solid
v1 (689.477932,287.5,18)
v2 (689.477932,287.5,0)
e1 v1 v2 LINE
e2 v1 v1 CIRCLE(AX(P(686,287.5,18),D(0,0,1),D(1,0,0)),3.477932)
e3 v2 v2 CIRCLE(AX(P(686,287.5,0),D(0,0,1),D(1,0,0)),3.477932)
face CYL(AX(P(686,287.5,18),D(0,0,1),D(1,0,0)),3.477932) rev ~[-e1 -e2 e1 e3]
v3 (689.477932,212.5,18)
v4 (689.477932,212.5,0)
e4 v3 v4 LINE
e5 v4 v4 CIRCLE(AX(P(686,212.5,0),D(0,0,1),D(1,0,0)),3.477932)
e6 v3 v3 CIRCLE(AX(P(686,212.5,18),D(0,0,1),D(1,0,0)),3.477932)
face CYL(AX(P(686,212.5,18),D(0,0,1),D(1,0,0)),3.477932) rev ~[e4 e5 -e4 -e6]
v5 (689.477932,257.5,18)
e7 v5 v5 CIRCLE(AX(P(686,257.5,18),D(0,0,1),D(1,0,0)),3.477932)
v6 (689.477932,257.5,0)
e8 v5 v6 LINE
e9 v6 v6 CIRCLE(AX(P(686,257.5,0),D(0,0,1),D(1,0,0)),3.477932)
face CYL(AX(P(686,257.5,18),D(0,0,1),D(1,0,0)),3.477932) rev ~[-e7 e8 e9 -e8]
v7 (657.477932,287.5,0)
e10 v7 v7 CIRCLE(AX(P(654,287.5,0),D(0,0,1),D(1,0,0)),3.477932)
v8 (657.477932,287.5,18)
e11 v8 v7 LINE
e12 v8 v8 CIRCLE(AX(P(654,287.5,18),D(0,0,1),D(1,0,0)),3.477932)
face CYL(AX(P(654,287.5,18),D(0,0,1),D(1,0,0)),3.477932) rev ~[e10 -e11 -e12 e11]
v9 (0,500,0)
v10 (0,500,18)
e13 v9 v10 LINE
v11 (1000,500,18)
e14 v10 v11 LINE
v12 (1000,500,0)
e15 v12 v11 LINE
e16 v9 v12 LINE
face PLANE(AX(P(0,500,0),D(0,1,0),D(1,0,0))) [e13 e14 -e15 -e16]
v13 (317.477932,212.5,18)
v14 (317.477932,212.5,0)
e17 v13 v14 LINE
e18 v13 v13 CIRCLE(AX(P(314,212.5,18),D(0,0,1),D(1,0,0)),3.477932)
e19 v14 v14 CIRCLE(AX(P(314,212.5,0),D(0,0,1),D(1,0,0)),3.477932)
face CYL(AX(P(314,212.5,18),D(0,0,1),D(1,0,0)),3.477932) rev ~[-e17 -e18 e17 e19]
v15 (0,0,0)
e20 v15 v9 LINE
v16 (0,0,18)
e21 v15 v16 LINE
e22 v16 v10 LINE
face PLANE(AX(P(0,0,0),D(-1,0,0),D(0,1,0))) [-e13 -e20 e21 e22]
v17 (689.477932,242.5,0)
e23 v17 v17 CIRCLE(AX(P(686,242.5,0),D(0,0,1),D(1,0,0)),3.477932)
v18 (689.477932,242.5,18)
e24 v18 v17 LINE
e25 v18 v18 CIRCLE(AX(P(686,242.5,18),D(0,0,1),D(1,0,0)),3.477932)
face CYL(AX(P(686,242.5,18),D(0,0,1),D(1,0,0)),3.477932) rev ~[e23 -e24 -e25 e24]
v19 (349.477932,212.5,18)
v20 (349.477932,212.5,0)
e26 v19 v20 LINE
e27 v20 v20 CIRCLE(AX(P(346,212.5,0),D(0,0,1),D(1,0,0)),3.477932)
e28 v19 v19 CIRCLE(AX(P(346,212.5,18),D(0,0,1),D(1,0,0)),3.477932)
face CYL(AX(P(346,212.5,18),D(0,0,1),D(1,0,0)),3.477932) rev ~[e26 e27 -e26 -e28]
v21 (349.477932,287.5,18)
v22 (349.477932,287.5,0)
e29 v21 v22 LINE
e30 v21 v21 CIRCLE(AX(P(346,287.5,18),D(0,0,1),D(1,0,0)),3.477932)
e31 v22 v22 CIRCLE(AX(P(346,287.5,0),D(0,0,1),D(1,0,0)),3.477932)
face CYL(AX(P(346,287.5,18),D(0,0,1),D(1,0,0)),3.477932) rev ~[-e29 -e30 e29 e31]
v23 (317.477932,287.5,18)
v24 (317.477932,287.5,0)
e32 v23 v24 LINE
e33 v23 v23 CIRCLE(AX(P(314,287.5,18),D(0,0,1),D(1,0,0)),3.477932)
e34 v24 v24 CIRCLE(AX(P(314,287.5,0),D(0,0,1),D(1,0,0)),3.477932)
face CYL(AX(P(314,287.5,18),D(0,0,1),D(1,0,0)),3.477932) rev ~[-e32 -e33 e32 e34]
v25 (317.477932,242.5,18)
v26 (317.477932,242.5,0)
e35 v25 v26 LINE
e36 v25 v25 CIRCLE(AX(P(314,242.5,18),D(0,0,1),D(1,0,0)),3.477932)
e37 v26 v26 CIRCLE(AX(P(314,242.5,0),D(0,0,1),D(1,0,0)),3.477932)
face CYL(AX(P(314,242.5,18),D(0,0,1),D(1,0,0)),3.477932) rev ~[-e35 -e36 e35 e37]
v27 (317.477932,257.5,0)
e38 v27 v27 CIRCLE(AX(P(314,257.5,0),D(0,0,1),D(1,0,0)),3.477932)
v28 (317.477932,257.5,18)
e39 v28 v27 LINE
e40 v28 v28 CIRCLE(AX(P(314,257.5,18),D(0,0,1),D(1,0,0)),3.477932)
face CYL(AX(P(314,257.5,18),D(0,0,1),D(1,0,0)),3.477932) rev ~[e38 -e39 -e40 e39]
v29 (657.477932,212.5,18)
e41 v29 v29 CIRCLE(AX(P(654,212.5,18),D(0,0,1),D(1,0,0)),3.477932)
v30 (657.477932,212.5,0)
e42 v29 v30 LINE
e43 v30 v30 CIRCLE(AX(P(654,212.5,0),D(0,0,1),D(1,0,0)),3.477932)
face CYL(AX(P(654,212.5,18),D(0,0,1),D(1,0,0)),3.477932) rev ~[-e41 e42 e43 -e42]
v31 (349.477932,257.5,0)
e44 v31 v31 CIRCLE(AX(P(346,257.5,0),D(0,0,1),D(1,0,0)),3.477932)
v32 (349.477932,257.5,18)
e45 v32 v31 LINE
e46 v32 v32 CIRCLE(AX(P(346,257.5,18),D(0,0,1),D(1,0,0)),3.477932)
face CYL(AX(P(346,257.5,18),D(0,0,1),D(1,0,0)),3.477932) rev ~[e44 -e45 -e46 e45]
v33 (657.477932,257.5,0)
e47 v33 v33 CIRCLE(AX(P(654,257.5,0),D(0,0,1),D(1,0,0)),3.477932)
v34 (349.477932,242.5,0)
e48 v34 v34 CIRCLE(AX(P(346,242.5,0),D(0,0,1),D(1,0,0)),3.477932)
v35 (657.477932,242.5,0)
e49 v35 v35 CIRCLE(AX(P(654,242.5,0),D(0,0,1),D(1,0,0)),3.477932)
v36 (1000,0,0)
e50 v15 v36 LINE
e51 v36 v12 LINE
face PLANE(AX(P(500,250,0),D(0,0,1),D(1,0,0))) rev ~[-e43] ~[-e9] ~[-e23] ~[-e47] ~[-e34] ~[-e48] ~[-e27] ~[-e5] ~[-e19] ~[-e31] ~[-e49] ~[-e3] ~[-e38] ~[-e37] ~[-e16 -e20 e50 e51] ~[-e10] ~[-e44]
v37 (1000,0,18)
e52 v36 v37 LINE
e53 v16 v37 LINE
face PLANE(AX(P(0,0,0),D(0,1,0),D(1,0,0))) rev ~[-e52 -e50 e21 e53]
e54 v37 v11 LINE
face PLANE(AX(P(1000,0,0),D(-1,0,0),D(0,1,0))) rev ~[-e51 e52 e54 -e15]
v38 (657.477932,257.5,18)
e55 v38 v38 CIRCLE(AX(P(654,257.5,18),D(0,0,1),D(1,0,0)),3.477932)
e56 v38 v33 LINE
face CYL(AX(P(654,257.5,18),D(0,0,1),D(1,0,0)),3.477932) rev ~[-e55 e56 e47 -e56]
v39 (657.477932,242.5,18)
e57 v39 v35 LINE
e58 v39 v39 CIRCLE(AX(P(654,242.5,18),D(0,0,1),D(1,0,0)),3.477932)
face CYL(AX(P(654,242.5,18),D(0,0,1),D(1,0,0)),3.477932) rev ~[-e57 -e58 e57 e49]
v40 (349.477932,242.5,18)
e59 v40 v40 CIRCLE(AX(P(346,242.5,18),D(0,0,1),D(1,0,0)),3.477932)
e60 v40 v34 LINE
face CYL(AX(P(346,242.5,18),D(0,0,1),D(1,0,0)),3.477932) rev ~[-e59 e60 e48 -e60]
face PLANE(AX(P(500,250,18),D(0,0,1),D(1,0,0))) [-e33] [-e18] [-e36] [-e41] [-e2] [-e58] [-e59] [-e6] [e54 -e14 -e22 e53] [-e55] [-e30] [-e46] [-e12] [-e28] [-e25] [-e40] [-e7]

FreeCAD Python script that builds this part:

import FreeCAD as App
import Part
import Sketcher

V = App.Vector
Q = App.Units.Quantity

doc = App.newDocument("Part")
body = doc.addObject("PartDesign::Body", "Body")

# Sketch on XY plane
sketch1 = body.newObject("Sketcher::SketchObject", "Sketch")
sketch1.AttachmentSupport = (doc.getObject("XY_Plane"), [""])
sketch1.MapMode = "FlatFace"
sketch1.addGeometry([
    Part.LineSegment(V(0, 500, 0), V(0, 0, 0)),
    Part.LineSegment(V(0, 0, 0), V(1000, 0, 0)),
    Part.LineSegment(V(1000, 0, 0), V(1000, 500, 0)),
    Part.LineSegment(V(1000, 500, 0), V(0, 500, 0)),
], False)
sketch1.addConstraint([
    Sketcher.Constraint("Coincident", 0, 2, 1, 1),
    Sketcher.Constraint("Coincident", 1, 2, 2, 1),
    Sketcher.Constraint("Coincident", 2, 2, 3, 1),
    Sketcher.Constraint("Coincident", 3, 2, 0, 1),
    Sketcher.Constraint("Vertical", 0),
    Sketcher.Constraint("Horizontal", 1),
    Sketcher.Constraint("Vertical", 2),
    Sketcher.Constraint("Horizontal", 3),
    Sketcher.Constraint("Coincident", 0, 2, -1, 1),
    Sketcher.Constraint("DistanceX", 1, 1, 1, 2, Q("1000 mm")),
    Sketcher.Constraint("DistanceY", 0, 2, 0, 1, Q("500 mm")),
])
pad1 = body.newObject("PartDesign::Pad", "Pad")
pad1.Profile = sketch1
pad1.Length = 18

# Sketch on XY plane
sketch2 = body.newObject("Sketcher::SketchObject", "Sketch001")
sketch2.AttachmentSupport = (doc.getObject("XY_Plane"), [""])
sketch2.MapMode = "FlatFace"
sketch2.AttachmentOffset = App.Placement(V(0, 0, 18), App.Rotation())
sketch2.addGeometry([
    Part.Circle(V(346, 212.5, 0), V(0, 0, 1), 3.5),  # 0
    Part.Circle(V(314, 212.5, 0), V(0, 0, 1), 3.5),  # 1
    Part.Circle(V(314, 242.5, 0), V(0, 0, 1), 3.5),  # 2
    Part.Circle(V(346, 242.5, 0), V(0, 0, 1), 3.5),  # 3
    Part.Circle(V(346, 257.5, 0), V(0, 0, 1), 3.5),  # 4
    Part.Circle(V(314, 257.5, 0), V(0, 0, 1), 3.5),  # 5
    Part.Circle(V(314, 287.5, 0), V(0, 0, 1), 3.5),  # 6
    Part.Circle(V(346, 287.5, 0), V(0, 0, 1), 3.5),  # 7
    Part.Circle(V(654, 287.5, 0), V(0, 0, 1), 3.5),  # 8
    Part.Circle(V(654, 257.5, 0), V(0, 0, 1), 3.5),  # 9
    Part.Circle(V(654, 242.5, 0), V(0, 0, 1), 3.5),  # 10
    Part.Circle(V(654, 212.5, 0), V(0, 0, 1), 3.5),  # 11
    Part.Circle(V(686, 287.5, 0), V(0, 0, 1), 3.5),  # 12
    Part.Circle(V(686, 257.5, 0), V(0, 0, 1), 3.5),  # 13
    Part.Circle(V(686, 242.5, 0), V(0, 0, 1), 3.5),  # 14
    Part.Circle(V(686, 212.5, 0), V(0, 0, 1), 3.5),  # 15
], False)
sketch2.addConstraint([
    Sketcher.Constraint("Equal", 0, 1),
    Sketcher.Constraint("Equal", 1, 2),
    Sketcher.Constraint("Equal", 2, 3),
    Sketcher.Constraint("Equal", 3, 4),
    Sketcher.Constraint("Equal", 4, 5),
    Sketcher.Constraint("Equal", 5, 6),
    Sketcher.Constraint("Equal", 6, 7),
    Sketcher.Constraint("Equal", 7, 8),
    Sketcher.Constraint("Equal", 8, 9),
    Sketcher.Constraint("Equal", 9, 10),
    Sketcher.Constraint("Equal", 10, 11),
    Sketcher.Constraint("Equal", 11, 12),
    Sketcher.Constraint("Equal", 12, 13),
    Sketcher.Constraint("Equal", 13, 14),
    Sketcher.Constraint("Equal", 14, 15),
    Sketcher.Constraint("Horizontal", 0, 3, 1, 3),
    Sketcher.Constraint("Horizontal", 2, 3, 3, 3),
    Sketcher.Constraint("Horizontal", 4, 3, 5, 3),
    Sketcher.Constraint("Horizontal", 6, 3, 7, 3),
    Sketcher.Constraint("Horizontal", 7, 3, 8, 3),
    Sketcher.Constraint("Horizontal", 5, 3, 9, 3),
    Sketcher.Constraint("Horizontal", 3, 3, 10, 3),
    Sketcher.Constraint("Horizontal", 1, 3, 11, 3),
    Sketcher.Constraint("Horizontal", 8, 3, 12, 3),
    Sketcher.Constraint("Horizontal", 9, 3, 13, 3),
    Sketcher.Constraint("Horizontal", 10, 3, 14, 3),
    Sketcher.Constraint("Horizontal", 11, 3, 15, 3),
    Sketcher.Constraint("Vertical", 1, 3, 2, 3),
    Sketcher.Constraint("Vertical", 0, 3, 3, 3),
    Sketcher.Constraint("Vertical", 3, 3, 4, 3),
    Sketcher.Constraint("Vertical", 2, 3, 5, 3),
    Sketcher.Constraint("Vertical", 5, 3, 6, 3),
    Sketcher.Constraint("Vertical", 4, 3, 7, 3),
    Sketcher.Constraint("Vertical", 8, 3, 9, 3),
    Sketcher.Constraint("Vertical", 9, 3, 10, 3),
    Sketcher.Constraint("Vertical", 10, 3, 11, 3),
    Sketcher.Constraint("Vertical", 12, 3, 13, 3),
    Sketcher.Constraint("Vertical", 13, 3, 14, 3),
    Sketcher.Constraint("Vertical", 14, 3, 15, 3),
    Sketcher.Constraint("DistanceX", -1, 1, 0, 3, Q("346 mm")),
    Sketcher.Constraint("DistanceX", -1, 1, 1, 3, Q("314 mm")),
    Sketcher.Constraint("DistanceX", -1, 1, 8, 3, Q("654 mm")),
    Sketcher.Constraint("DistanceX", -1, 1, 12, 3, Q("686 mm")),
    Sketcher.Constraint("DistanceY", 1, 3, 2, 3, Q("30 mm")),
    Sketcher.Constraint("DistanceY", 3, 3, 4, 3, Q("15 mm")),
    Sketcher.Constraint("DistanceY", 5, 3, 6, 3, Q("30 mm")),
    Sketcher.Constraint("DistanceY", -1, 1, 0, 3, Q("212.5 mm")),
    Sketcher.Constraint("Diameter", 0, Q("6.955864 mm")),
])
pocket1 = body.newObject("PartDesign::Pocket", "Pocket")
pocket1.Profile = sketch2
pocket1.Length = 18

doc.recompute()
